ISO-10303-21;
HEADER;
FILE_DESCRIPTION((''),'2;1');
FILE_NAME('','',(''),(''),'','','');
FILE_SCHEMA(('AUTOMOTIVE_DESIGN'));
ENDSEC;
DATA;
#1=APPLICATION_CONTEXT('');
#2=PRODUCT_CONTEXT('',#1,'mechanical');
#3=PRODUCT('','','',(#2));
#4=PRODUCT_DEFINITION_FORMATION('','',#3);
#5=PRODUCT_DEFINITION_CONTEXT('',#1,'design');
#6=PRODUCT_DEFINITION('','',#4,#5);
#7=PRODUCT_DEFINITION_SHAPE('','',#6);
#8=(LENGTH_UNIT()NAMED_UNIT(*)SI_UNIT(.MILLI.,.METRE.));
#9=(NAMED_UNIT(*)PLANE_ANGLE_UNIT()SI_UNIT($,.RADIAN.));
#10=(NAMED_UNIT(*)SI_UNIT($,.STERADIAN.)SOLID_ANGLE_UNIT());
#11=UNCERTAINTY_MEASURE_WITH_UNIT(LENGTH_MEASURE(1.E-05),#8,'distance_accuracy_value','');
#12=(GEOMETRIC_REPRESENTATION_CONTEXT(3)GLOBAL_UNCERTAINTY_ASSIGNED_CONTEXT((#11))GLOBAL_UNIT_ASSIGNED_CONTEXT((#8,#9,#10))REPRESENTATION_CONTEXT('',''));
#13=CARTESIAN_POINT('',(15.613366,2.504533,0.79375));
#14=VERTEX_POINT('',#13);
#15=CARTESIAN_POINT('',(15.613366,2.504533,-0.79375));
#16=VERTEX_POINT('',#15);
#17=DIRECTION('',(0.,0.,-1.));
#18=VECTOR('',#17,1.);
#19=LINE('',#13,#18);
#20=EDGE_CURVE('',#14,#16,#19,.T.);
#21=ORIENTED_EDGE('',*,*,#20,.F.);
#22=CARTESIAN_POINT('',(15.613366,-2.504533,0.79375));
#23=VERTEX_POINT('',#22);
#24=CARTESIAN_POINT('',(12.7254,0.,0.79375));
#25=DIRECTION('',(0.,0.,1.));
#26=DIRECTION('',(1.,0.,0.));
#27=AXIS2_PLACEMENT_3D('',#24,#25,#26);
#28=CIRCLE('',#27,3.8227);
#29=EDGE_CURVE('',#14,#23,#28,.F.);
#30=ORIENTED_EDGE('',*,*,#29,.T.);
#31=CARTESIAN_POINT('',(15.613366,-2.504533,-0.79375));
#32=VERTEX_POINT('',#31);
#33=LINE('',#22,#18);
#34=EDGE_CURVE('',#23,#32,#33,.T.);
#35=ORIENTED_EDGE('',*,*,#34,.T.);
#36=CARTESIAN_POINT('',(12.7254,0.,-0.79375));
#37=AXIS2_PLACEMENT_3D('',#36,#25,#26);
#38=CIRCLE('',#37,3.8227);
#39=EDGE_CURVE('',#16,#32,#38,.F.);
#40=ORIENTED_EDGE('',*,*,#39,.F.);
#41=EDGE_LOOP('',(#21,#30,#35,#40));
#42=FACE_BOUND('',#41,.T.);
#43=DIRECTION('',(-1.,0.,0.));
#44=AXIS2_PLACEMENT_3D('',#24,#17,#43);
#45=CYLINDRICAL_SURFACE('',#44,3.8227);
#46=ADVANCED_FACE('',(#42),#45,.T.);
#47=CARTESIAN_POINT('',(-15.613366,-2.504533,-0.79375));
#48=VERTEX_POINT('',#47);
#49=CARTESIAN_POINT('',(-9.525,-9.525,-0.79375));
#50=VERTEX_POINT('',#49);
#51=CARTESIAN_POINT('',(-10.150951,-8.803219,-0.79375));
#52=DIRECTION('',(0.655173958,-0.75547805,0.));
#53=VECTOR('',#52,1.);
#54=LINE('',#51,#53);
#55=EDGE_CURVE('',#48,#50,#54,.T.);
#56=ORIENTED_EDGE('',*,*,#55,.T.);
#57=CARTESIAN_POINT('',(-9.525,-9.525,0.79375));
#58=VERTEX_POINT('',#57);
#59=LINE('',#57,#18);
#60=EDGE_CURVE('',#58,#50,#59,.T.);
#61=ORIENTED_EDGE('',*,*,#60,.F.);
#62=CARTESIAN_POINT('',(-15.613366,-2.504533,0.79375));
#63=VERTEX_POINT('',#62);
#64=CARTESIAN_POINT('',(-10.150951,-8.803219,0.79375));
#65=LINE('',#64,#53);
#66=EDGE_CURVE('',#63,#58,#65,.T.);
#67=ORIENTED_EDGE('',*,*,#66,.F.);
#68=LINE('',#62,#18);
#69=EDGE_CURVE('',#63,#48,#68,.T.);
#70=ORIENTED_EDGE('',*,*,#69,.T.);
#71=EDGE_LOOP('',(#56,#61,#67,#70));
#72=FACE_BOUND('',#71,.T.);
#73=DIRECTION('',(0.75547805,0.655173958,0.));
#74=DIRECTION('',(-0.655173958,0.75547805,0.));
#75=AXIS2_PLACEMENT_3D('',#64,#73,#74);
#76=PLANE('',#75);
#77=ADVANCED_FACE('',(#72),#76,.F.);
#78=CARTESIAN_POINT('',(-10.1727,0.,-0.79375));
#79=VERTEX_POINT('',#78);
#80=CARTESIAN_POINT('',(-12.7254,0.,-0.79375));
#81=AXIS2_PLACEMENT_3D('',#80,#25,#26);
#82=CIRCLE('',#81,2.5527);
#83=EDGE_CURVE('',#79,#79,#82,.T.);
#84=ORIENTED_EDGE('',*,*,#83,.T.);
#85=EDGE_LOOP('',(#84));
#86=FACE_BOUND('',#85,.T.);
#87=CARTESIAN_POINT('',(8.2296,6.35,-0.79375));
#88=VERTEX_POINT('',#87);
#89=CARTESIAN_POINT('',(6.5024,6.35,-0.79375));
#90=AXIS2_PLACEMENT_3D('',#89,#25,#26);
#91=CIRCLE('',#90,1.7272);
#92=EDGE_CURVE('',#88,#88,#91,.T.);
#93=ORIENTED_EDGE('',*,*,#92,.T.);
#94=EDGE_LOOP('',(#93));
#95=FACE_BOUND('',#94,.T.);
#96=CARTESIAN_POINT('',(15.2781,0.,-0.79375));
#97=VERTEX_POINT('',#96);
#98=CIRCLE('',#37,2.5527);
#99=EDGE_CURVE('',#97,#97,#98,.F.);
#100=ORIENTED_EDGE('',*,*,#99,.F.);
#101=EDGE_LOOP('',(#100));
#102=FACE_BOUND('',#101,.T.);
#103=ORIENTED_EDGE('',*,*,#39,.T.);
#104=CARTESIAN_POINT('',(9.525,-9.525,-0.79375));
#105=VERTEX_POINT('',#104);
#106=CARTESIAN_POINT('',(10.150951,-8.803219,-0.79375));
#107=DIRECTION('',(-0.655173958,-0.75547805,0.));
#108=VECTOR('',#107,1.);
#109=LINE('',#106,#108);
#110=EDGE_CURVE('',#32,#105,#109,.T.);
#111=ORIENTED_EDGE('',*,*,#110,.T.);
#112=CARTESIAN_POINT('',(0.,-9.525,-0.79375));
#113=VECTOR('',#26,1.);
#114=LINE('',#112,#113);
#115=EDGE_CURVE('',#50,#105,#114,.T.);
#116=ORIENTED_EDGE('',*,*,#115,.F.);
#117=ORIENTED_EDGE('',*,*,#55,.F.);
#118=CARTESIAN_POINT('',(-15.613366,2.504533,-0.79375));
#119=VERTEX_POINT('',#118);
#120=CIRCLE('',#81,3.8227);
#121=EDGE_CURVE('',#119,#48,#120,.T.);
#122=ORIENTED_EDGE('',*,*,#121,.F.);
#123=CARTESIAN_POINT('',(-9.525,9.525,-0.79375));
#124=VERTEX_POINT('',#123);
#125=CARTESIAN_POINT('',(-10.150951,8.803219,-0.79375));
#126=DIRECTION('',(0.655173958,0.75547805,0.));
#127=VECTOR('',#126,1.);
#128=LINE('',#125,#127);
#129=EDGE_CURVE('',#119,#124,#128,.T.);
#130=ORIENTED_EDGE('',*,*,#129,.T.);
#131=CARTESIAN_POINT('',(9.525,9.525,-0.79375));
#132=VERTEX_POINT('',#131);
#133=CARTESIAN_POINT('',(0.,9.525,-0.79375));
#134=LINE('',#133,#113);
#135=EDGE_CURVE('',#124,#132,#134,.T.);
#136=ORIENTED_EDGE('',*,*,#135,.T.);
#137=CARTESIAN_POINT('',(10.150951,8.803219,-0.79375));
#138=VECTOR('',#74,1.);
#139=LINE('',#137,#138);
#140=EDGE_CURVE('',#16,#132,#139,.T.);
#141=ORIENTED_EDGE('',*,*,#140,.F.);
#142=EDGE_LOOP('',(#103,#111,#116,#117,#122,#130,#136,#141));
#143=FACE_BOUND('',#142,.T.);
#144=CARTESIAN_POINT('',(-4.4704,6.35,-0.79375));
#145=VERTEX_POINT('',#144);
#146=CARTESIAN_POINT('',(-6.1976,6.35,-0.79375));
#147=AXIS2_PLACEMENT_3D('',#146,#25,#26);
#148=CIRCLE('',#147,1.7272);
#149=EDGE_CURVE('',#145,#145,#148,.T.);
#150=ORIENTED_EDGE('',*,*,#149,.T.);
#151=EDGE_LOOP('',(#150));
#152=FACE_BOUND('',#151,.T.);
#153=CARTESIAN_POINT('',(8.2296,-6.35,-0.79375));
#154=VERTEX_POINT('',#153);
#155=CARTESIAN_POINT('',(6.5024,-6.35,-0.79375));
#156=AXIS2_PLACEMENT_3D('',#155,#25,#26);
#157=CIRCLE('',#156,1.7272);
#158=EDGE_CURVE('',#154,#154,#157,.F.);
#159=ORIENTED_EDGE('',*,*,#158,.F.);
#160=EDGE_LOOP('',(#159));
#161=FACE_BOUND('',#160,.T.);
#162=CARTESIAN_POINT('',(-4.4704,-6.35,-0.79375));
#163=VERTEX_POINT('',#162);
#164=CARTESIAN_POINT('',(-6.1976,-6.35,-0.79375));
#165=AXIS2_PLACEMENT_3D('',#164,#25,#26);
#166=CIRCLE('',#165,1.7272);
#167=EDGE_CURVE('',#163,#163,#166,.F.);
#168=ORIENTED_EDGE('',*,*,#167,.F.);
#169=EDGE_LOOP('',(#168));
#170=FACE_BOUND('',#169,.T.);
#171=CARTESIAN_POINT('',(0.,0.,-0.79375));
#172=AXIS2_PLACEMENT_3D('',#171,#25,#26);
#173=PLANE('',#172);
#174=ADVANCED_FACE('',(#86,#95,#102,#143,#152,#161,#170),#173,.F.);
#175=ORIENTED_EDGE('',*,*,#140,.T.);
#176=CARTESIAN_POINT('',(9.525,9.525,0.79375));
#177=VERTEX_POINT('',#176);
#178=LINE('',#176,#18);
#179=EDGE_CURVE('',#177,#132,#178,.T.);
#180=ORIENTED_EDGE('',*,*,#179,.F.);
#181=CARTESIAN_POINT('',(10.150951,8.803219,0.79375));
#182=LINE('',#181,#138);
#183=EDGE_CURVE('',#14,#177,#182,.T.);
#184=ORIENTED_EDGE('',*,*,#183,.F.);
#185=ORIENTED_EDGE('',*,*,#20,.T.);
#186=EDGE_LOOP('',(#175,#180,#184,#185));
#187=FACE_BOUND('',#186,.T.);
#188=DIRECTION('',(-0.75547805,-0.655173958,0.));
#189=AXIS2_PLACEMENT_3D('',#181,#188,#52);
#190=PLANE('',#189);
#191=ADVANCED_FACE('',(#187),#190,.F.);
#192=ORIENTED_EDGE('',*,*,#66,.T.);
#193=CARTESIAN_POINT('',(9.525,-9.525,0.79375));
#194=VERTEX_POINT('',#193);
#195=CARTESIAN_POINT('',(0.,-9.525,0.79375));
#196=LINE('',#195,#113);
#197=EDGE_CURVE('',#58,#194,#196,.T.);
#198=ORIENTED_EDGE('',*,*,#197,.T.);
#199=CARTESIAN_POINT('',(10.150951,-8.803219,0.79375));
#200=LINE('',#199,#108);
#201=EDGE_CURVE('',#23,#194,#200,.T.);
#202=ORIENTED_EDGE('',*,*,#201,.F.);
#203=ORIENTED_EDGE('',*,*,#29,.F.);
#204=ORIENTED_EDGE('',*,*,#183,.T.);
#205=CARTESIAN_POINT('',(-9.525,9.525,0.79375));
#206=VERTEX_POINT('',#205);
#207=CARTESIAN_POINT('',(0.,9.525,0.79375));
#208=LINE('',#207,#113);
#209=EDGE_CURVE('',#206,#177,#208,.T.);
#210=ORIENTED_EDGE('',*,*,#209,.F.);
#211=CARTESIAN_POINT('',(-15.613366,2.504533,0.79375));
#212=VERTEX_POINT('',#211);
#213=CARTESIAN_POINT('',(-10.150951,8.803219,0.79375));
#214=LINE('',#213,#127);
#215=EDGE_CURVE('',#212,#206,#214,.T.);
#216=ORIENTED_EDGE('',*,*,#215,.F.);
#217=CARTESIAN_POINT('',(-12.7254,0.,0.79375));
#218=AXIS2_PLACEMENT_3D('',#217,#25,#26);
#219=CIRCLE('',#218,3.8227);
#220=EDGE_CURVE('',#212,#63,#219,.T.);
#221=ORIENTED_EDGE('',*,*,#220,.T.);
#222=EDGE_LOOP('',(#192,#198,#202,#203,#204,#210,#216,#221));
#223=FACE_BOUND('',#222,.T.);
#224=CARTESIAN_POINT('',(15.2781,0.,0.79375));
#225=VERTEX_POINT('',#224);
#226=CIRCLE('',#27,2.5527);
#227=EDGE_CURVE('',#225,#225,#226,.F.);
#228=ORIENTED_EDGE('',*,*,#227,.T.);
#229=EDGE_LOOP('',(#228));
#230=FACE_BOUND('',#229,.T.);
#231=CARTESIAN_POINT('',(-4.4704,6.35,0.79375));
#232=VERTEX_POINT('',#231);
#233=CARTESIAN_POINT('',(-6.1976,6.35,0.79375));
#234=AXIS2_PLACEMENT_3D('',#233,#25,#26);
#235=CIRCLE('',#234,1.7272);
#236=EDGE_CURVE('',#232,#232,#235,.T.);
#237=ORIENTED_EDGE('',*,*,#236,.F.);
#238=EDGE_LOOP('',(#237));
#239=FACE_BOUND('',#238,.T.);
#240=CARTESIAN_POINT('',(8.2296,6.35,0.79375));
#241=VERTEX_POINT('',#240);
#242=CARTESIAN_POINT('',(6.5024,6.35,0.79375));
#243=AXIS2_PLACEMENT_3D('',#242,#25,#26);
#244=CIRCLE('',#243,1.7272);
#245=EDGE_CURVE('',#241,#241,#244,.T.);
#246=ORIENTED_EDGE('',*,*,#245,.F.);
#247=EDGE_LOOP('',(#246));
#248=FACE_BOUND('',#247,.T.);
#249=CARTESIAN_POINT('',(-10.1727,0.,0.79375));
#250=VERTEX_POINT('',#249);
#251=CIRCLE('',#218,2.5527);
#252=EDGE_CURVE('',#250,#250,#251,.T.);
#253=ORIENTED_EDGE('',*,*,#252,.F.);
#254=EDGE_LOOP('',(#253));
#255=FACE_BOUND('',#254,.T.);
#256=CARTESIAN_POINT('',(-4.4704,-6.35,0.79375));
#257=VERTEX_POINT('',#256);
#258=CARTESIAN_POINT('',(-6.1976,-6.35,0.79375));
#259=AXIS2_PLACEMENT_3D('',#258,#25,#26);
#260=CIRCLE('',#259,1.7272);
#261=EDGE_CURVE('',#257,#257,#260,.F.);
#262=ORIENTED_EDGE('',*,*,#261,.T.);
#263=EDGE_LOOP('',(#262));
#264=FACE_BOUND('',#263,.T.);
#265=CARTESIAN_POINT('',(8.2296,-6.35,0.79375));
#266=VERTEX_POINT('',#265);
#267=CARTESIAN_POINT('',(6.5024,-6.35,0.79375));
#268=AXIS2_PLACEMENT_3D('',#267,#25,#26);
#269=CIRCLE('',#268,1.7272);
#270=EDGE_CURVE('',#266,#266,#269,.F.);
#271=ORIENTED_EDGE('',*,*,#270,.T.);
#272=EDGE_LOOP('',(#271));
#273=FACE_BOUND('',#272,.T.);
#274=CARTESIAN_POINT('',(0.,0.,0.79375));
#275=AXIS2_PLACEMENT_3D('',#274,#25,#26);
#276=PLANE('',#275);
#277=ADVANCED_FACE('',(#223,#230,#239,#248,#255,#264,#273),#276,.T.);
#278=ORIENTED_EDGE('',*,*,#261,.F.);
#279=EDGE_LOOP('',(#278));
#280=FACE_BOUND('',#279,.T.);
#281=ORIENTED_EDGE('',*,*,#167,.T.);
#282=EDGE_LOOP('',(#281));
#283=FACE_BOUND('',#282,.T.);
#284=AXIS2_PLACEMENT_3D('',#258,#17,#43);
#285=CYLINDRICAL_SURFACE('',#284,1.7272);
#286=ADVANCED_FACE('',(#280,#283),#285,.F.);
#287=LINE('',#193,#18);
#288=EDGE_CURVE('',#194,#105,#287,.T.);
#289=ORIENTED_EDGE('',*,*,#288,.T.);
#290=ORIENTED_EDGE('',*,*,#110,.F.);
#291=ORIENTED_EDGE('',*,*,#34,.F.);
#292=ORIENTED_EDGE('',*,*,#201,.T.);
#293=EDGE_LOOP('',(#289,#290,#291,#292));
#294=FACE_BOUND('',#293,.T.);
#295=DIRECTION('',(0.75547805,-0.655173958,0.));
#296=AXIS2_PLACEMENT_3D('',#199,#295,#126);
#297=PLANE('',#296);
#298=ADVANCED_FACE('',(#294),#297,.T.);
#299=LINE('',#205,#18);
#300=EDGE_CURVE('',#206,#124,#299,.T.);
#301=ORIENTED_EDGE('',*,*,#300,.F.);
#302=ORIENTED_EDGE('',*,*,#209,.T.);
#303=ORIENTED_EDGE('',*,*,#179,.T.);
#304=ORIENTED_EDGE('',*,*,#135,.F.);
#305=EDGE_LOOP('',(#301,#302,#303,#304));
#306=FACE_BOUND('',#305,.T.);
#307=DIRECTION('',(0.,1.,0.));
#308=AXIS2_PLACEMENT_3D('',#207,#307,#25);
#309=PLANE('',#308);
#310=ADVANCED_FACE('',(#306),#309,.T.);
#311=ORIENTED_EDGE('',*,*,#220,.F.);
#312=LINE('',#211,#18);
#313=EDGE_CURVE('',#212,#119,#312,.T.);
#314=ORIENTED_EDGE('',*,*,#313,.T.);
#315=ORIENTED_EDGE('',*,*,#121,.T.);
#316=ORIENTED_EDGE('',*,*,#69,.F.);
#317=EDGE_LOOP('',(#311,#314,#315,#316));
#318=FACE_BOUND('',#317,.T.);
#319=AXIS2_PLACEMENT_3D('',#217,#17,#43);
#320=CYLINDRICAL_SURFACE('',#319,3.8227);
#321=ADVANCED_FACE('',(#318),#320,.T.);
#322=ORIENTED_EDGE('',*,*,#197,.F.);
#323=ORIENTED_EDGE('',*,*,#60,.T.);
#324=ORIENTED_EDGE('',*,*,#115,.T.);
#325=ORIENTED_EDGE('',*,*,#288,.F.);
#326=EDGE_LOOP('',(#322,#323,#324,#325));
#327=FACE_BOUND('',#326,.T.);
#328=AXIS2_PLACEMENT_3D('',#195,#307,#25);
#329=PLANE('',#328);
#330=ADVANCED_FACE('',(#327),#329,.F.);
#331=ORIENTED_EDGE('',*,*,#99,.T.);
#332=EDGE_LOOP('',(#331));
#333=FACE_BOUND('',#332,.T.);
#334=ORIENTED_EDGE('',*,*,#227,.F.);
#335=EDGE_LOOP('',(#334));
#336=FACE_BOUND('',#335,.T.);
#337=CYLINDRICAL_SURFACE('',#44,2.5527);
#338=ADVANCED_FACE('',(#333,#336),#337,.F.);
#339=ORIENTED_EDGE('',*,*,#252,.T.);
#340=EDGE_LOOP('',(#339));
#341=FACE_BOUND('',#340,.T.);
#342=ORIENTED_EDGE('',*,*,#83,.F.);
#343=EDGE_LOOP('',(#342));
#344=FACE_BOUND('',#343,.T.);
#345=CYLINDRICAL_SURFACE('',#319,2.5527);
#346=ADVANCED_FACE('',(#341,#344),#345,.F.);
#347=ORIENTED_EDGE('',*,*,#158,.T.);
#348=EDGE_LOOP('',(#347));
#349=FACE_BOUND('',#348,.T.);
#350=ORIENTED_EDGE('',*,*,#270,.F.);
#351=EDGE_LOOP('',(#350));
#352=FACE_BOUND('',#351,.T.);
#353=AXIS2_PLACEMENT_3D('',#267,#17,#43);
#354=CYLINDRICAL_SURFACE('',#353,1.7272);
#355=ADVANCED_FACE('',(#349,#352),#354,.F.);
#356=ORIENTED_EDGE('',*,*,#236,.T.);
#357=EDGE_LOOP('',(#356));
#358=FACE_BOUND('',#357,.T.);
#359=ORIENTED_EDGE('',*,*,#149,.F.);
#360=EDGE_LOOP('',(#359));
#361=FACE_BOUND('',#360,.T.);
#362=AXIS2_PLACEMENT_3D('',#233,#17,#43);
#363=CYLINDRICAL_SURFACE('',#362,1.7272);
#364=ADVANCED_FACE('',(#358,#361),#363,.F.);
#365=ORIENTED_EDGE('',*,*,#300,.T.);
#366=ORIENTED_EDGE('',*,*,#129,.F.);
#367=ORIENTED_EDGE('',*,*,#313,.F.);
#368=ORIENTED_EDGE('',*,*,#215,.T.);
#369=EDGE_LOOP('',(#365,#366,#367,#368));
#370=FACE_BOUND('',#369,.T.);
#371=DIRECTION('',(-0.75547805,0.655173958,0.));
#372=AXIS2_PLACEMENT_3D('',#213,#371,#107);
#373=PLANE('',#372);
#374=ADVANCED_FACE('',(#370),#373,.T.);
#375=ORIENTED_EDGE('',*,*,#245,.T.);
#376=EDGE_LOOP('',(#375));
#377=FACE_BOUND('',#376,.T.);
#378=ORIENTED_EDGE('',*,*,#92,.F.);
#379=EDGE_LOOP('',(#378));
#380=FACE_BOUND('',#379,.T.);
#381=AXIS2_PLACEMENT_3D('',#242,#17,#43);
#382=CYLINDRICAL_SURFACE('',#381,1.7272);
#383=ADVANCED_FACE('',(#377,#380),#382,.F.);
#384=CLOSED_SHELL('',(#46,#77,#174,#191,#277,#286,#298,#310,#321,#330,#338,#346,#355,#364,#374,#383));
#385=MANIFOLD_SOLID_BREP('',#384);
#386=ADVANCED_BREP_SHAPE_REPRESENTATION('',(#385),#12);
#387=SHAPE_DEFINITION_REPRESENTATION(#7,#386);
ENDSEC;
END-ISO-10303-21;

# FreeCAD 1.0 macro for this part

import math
import FreeCAD as App
import Part
import Sketcher

V = App.Vector
Q = App.Units.Quantity

doc = App.newDocument("Part")
body = doc.addObject("PartDesign::Body", "Body")

sketch1 = doc.addObject("Sketcher::SketchObject", "Sketch")
body.addObject(sketch1)
sketch1.AttachmentSupport = (doc.XY_Plane, [""])
sketch1.MapMode = "FlatFace"
sketch1.addGeometry([
    Part.ArcOfCircle(Part.Circle(V(-12.7254, 0, 0), V(0, 0, 1), 3.8227), math.radians(139.067158), math.radians(220.932842)),
    Part.LineSegment(V(-15.613366, -2.504533, 0), V(-9.525, -9.525, 0)),
    Part.LineSegment(V(-9.525, -9.525, 0), V(9.525, -9.525, 0)),
    Part.LineSegment(V(9.525, -9.525, 0), V(15.613366, -2.504533, 0)),
    Part.ArcOfCircle(Part.Circle(V(12.7254, 0, 0), V(0, 0, 1), 3.8227), math.radians(-40.932842), math.radians(40.932842)),
    Part.LineSegment(V(15.613366, 2.504533, 0), V(9.525, 9.525, 0)),
    Part.LineSegment(V(9.525, 9.525, 0), V(-9.525, 9.525, 0)),
    Part.LineSegment(V(-9.525, 9.525, 0), V(-15.613366, 2.504533, 0)),
    Part.Circle(V(-6.1976, -6.35, 0), V(0, 0, 1), 1.7272),
    Part.Circle(V(6.5024, -6.35, 0), V(0, 0, 1), 1.7272),
    Part.Circle(V(-12.7254, 0, 0), V(0, 0, 1), 2.5527),
    Part.Circle(V(-6.1976, 6.35, 0), V(0, 0, 1), 1.7272),
    Part.Circle(V(12.7254, 0, 0), V(0, 0, 1), 2.5527),
    Part.Circle(V(6.5024, 6.35, 0), V(0, 0, 1), 1.7272),
], False)
sketch1.addConstraint([
    Sketcher.Constraint("Tangent", 0, 2, 1, 1),
    Sketcher.Constraint("Coincident", 1, 2, 2, 1),
    Sketcher.Constraint("Coincident", 2, 2, 3, 1),
    Sketcher.Constraint("Tangent", 3, 2, 4, 1),
    Sketcher.Constraint("Tangent", 4, 2, 5, 1),
    Sketcher.Constraint("Coincident", 5, 2, 6, 1),
    Sketcher.Constraint("Coincident", 6, 2, 7, 1),
    Sketcher.Constraint("Tangent", 7, 2, 0, 1),
    Sketcher.Constraint("Horizontal", 2),
    Sketcher.Constraint("Horizontal", 6),
    Sketcher.Constraint("Coincident", 10, 3, 0, 3),
    Sketcher.Constraint("Coincident", 12, 3, 4, 3),
    Sketcher.Constraint("Equal", 0, 4),
    Sketcher.Constraint("Equal", 8, 9),
    Sketcher.Constraint("Equal", 9, 11),
    Sketcher.Constraint("Equal", 10, 12),
    Sketcher.Constraint("Equal", 11, 13),
    Sketcher.Constraint("Symmetric", 0, 3, 4, 3, -1, 1),
    Sketcher.Constraint("Symmetric", 1, 2, 5, 2, -1, 1),
    Sketcher.Constraint("Symmetric", 0, 2, 3, 2, -2),
    Sketcher.Constraint("Symmetric", 8, 3, 11, 3, -1),
    Sketcher.Constraint("Symmetric", 9, 3, 13, 3, -1),
    Sketcher.Constraint("Parallel", 3, 7),
    Sketcher.Constraint("Horizontal", 8, 3, 9, 3),
    Sketcher.Constraint("Diameter", 8, Q("0.136 in")),
    Sketcher.Constraint("Diameter", 10, Q("0.201 in")),
    Sketcher.Constraint("DistanceX", 2, 1, 2, 2, Q("0.75 in")),
    Sketcher.Constraint("Radius", 0, Q("0.1505 in")),
    Sketcher.Constraint("DistanceX", 8, 3, 9, 3, Q("0.5 in")),
    Sketcher.Constraint("DistanceY", 8, 3, 11, 3, Q("0.5 in")),
    Sketcher.Constraint("DistanceX", 0, 3, -1, 1, Q("0.501 in")),
    Sketcher.Constraint("DistanceX", 8, 3, -1, 1, Q("0.244 in")),
    Sketcher.Constraint("DistanceY", 1, 2, -1, 1, Q("0.375 in")),
])
pad1 = doc.addObject("PartDesign::Pad", "Pad")
body.addObject(pad1)
pad1.Profile = sketch1
pad1.Length = Q("0.0625 in")
pad1.Midplane = True

doc.recompute()
